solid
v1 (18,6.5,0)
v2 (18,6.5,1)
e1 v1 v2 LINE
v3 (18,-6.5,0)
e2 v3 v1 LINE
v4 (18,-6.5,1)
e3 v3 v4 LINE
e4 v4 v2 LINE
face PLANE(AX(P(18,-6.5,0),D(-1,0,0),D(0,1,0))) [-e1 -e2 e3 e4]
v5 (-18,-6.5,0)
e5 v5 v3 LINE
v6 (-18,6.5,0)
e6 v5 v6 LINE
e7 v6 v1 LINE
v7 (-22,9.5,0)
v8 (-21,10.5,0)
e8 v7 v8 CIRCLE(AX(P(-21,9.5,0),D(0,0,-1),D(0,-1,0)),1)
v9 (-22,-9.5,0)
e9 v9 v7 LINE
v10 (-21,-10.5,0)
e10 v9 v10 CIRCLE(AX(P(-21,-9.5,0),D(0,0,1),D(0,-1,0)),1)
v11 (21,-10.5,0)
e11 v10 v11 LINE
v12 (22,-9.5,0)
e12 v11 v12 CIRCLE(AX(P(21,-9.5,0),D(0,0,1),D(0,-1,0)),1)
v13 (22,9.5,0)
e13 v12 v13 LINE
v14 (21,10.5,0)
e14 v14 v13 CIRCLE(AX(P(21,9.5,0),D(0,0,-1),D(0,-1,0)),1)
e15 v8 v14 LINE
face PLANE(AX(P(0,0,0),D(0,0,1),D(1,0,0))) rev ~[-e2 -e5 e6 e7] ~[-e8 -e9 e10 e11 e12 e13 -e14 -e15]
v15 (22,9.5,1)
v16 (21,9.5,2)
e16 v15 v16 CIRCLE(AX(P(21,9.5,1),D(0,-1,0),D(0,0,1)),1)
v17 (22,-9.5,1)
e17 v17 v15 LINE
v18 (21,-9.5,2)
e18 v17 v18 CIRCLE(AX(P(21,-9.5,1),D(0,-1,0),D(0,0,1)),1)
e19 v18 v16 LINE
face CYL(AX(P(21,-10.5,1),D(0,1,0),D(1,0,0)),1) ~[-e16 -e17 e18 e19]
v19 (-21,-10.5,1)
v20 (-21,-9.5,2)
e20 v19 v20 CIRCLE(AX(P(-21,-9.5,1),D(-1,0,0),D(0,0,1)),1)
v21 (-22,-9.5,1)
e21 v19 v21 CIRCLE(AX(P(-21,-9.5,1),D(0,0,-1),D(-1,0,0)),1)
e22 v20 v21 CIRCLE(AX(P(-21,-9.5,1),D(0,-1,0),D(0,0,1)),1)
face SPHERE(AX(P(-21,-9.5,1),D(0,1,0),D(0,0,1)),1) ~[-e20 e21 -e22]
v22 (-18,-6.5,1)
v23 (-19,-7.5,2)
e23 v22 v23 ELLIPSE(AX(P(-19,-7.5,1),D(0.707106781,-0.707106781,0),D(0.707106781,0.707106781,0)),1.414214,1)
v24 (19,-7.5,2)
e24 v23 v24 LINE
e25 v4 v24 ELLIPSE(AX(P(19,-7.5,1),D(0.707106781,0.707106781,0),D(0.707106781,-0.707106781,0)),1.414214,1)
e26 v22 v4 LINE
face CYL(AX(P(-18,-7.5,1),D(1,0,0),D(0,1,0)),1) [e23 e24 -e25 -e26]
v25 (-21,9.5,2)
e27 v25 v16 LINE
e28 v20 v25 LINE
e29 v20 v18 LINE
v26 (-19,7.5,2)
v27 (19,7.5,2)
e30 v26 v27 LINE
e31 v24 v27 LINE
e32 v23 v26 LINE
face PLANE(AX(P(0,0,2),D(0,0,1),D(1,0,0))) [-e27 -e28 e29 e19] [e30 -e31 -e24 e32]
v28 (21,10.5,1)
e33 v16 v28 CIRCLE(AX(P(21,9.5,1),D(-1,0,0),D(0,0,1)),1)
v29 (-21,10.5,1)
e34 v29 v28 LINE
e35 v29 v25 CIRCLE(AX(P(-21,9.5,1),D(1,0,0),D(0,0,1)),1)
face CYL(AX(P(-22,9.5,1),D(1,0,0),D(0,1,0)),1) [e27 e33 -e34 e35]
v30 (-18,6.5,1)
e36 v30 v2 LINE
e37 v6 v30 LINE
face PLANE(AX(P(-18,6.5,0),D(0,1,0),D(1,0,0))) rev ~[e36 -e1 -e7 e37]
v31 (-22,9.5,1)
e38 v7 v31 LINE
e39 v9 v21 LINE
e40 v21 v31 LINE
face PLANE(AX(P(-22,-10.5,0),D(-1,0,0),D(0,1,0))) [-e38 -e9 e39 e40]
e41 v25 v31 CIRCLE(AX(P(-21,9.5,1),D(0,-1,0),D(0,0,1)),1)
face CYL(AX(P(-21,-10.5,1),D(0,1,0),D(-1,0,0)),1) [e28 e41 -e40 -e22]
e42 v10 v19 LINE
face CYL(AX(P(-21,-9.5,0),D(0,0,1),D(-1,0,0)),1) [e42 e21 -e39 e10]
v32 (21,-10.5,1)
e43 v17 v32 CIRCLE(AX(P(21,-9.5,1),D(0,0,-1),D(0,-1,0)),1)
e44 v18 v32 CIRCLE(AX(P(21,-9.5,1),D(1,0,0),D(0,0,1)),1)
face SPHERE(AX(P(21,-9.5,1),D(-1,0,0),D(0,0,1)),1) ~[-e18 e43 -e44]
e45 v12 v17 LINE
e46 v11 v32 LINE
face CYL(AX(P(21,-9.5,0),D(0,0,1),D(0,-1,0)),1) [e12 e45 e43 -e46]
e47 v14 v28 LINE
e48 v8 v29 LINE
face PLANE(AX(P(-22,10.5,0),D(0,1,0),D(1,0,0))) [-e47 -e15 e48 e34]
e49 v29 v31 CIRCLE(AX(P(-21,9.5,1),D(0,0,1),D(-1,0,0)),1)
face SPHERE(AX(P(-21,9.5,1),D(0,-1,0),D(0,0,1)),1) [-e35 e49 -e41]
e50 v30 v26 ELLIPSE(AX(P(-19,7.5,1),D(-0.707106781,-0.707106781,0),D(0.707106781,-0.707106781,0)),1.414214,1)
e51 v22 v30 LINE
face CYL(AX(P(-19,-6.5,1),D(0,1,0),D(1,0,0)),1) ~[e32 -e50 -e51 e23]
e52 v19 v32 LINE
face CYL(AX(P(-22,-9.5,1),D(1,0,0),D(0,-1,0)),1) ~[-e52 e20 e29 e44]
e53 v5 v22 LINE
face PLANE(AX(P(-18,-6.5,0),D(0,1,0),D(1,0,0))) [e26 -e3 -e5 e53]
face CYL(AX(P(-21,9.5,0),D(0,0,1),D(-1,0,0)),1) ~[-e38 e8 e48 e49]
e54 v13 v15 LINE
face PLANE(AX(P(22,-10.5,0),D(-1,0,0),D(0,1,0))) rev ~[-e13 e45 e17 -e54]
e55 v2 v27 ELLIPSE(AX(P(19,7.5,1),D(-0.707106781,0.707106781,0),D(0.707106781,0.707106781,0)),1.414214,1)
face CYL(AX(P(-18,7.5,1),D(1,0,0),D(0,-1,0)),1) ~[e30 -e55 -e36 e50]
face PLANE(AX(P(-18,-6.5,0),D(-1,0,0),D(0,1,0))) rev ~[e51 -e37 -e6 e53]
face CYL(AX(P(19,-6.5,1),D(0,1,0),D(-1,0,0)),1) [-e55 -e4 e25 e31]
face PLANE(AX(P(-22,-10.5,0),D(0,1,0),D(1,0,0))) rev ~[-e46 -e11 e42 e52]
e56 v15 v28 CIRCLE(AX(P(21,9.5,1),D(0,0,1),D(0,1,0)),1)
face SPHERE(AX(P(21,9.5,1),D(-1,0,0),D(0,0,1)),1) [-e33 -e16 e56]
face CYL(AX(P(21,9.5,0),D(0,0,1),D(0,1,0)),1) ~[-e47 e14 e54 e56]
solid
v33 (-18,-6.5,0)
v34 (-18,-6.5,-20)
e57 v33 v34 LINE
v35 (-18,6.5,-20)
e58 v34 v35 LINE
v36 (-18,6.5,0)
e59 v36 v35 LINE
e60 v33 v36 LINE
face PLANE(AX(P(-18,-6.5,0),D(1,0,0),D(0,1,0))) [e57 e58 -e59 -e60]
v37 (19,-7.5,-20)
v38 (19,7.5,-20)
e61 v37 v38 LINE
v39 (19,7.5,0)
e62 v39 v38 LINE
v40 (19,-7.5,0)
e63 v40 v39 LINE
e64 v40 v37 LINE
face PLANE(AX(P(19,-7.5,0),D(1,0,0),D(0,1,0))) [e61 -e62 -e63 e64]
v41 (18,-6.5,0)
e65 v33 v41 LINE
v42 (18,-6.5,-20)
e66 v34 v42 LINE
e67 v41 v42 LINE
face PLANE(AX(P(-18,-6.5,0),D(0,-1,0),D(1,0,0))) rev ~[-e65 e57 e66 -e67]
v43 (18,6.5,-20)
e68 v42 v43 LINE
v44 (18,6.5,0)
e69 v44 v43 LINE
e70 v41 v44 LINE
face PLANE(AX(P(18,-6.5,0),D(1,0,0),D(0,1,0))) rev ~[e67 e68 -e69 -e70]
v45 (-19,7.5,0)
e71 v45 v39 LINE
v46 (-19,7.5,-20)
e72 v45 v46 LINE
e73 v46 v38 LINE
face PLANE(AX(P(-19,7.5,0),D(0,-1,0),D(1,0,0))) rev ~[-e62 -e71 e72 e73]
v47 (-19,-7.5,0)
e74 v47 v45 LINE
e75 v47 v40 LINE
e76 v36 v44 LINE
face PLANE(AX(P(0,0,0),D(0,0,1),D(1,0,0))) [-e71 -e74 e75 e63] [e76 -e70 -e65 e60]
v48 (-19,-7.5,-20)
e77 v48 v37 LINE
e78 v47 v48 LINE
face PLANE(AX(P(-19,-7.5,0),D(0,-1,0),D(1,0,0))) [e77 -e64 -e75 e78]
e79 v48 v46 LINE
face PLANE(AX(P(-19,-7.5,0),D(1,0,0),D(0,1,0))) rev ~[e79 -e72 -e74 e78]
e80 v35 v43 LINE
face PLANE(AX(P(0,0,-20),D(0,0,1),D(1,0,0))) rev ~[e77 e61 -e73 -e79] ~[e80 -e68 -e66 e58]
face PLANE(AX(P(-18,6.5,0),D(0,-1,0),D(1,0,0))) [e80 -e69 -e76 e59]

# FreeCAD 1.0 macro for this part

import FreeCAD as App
import Part
import Sketcher

V = App.Vector


def edges_at(feature, points):
    """Names of the edges that pass closest to the given points."""
    edges = feature.Shape.Edges
    near = lambda p: min(range(len(edges)), key=lambda i: edges[i].distToShape(Part.Vertex(*p))[0])
    return sorted({f"Edge{near(p) + 1}" for p in points})

doc = App.newDocument("Part")
body = doc.addObject("PartDesign::Body", "Body")

# Sketch on XY plane
sketch1 = body.newObject("Sketcher::SketchObject", "Sketch")
sketch1.AttachmentSupport = (doc.getObject("XY_Plane"), [""])
sketch1.MapMode = "FlatFace"
sketch1.addGeometry([
    Part.LineSegment(V(-19, 7.5, 0), V(-19, -7.5, 0)),  # 0
    Part.LineSegment(V(-19, -7.5, 0), V(19, -7.5, 0)),  # 1
    Part.LineSegment(V(19, -7.5, 0), V(19, 7.5, 0)),  # 2
    Part.LineSegment(V(19, 7.5, 0), V(-19, 7.5, 0)),  # 3
    Part.LineSegment(V(18, -6.5, 0), V(-18, -6.5, 0)),  # 4
    Part.LineSegment(V(-18, -6.5, 0), V(-18, 6.5, 0)),  # 5
    Part.LineSegment(V(-18, 6.5, 0), V(18, 6.5, 0)),  # 6
    Part.LineSegment(V(18, 6.5, 0), V(18, -6.5, 0)),  # 7
], False)
sketch1.addConstraint([
    Sketcher.Constraint("Coincident", 0, 2, 1, 1),
    Sketcher.Constraint("Coincident", 1, 2, 2, 1),
    Sketcher.Constraint("Coincident", 2, 2, 3, 1),
    Sketcher.Constraint("Coincident", 3, 2, 0, 1),
    Sketcher.Constraint("Coincident", 4, 2, 5, 1),
    Sketcher.Constraint("Coincident", 5, 2, 6, 1),
    Sketcher.Constraint("Coincident", 6, 2, 7, 1),
    Sketcher.Constraint("Coincident", 7, 2, 4, 1),
    Sketcher.Constraint("Vertical", 0),
    Sketcher.Constraint("Horizontal", 1),
    Sketcher.Constraint("Vertical", 2),
    Sketcher.Constraint("Horizontal", 3),
    Sketcher.Constraint("Horizontal", 4),
    Sketcher.Constraint("Vertical", 5),
    Sketcher.Constraint("Horizontal", 6),
    Sketcher.Constraint("Vertical", 7),
    Sketcher.Constraint("Symmetric", 0, 2, 2, 2, -1, 1),
    Sketcher.Constraint("Symmetric", 4, 2, 6, 2, -1, 1),
    Sketcher.Constraint("DistanceX", 1, 1, 1, 2, 38.0),
    Sketcher.Constraint("DistanceX", 4, 2, 4, 1, 36.0),
    Sketcher.Constraint("DistanceY", 0, 2, 0, 1, 15.0),
    Sketcher.Constraint("DistanceY", 5, 1, 5, 2, 13.0),
])
pad1 = body.newObject("PartDesign::Pad", "Pad")
pad1.Profile = sketch1
pad1.Length = 20
pad1.Reversed = True
body2 = doc.addObject("PartDesign::Body", "Body001")

# Sketch on XY plane
sketch2 = body2.newObject("Sketcher::SketchObject", "Sketch001")
sketch2.AttachmentSupport = (doc.getObject("XY_Plane001"), [""])
sketch2.MapMode = "FlatFace"
sketch2.addGeometry([
    Part.LineSegment(V(-22, 10.5, 0), V(-22, -10.5, 0)),  # 0
    Part.LineSegment(V(-22, -10.5, 0), V(22, -10.5, 0)),  # 1
    Part.LineSegment(V(22, -10.5, 0), V(22, 10.5, 0)),  # 2
    Part.LineSegment(V(22, 10.5, 0), V(-22, 10.5, 0)),  # 3
    Part.LineSegment(V(18, -6.5, 0), V(-18, -6.5, 0)),  # 4
    Part.LineSegment(V(-18, -6.5, 0), V(-18, 6.5, 0)),  # 5
    Part.LineSegment(V(-18, 6.5, 0), V(18, 6.5, 0)),  # 6
    Part.LineSegment(V(18, 6.5, 0), V(18, -6.5, 0)),  # 7
], False)
sketch2.addConstraint([
    Sketcher.Constraint("Coincident", 0, 2, 1, 1),
    Sketcher.Constraint("Coincident", 1, 2, 2, 1),
    Sketcher.Constraint("Coincident", 2, 2, 3, 1),
    Sketcher.Constraint("Coincident", 3, 2, 0, 1),
    Sketcher.Constraint("Coincident", 4, 2, 5, 1),
    Sketcher.Constraint("Coincident", 5, 2, 6, 1),
    Sketcher.Constraint("Coincident", 6, 2, 7, 1),
    Sketcher.Constraint("Coincident", 7, 2, 4, 1),
    Sketcher.Constraint("Vertical", 0),
    Sketcher.Constraint("Horizontal", 1),
    Sketcher.Constraint("Vertical", 2),
    Sketcher.Constraint("Horizontal", 3),
    Sketcher.Constraint("Horizontal", 4),
    Sketcher.Constraint("Vertical", 5),
    Sketcher.Constraint("Horizontal", 6),
    Sketcher.Constraint("Vertical", 7),
    Sketcher.Constraint("Symmetric", 0, 2, 2, 2, -1, 1),
    Sketcher.Constraint("Symmetric", 4, 2, 6, 2, -1, 1),
    Sketcher.Constraint("DistanceX", 1, 1, 1, 2, 44.0),
    Sketcher.Constraint("DistanceX", 4, 2, 4, 1, 36.0),
    Sketcher.Constraint("DistanceY", 0, 2, 0, 1, 21.0),
    Sketcher.Constraint("DistanceY", 5, 1, 5, 2, 13.0),
])
pad2 = body2.newObject("PartDesign::Pad", "Pad001")
pad2.Profile = sketch2
pad2.Length = 2
doc.recompute()

fillet = body2.newObject("PartDesign::Fillet", "Fillet")
fillet.Base = (pad2, edges_at(pad2, [
    (0, 6.5, 2),
    (-18, 0, 2),
    (0, -6.5, 2),
    (18, 0, 2),
    (-22, 0, 2),
    (0, 10.5, 2),
    (0, -10.5, 2),
    (22, 0, 2),
    (-22, -10.5, 1),
    (22, -10.5, 1),
    (22, 10.5, 1),
    (-22, 10.5, 1),
]))
fillet.Radius = 1

doc.recompute()
